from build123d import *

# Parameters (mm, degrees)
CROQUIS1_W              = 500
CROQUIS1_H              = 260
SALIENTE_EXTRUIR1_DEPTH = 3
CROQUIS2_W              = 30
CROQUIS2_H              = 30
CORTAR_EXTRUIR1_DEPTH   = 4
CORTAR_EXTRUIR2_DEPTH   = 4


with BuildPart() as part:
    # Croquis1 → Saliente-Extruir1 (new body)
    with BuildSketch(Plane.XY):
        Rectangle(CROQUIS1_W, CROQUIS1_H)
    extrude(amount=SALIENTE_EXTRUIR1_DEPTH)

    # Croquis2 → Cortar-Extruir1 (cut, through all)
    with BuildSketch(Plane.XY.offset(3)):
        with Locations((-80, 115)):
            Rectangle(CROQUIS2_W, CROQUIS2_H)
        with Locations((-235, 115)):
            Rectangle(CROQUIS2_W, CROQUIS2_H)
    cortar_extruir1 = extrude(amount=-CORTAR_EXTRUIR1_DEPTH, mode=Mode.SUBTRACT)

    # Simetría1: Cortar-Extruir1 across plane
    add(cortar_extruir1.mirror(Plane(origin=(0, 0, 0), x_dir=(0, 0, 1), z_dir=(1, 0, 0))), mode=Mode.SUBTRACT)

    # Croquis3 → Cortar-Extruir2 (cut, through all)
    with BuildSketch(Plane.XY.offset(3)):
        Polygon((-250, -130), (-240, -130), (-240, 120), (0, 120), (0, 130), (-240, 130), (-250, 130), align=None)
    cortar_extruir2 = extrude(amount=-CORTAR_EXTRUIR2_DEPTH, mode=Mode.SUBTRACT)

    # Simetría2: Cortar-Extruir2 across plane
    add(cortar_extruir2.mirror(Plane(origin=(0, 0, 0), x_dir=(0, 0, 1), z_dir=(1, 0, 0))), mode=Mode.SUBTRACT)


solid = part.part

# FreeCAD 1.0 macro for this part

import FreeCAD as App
import Part
import Sketcher
from FreeCAD import Vector
Q = App.Units.Quantity


def add_polygon(sketch, points):
    """Adds a closed chain of lines whose ends are joined by coincident constraints."""
    first, n = sketch.GeometryCount, len(points)
    for a, b in zip(points, points[1:] + points[:1]):
        sketch.addGeometry(Part.LineSegment(App.Vector(*a, 0), App.Vector(*b, 0)), False)
    for i in range(n):
        sketch.addConstraint(Sketcher.Constraint("Coincident", first + i, 2, first + (i + 1) % n, 1))

doc = App.newDocument("Part")
body = doc.addObject("PartDesign::Body", "Body")

# Sketch on XY plane
sketch1 = doc.addObject("Sketcher::SketchObject", "Sketch")
body.addObject(sketch1)
sketch1.AttachmentSupport = (doc.XY_Plane, [""])
sketch1.MapMode = "FlatFace"
add_polygon(sketch1, [(-250, 130), (-250, -130), (250, -130), (250, 130)])  # lines 0-3
sketch1.addConstraint([
    Sketcher.Constraint("Vertical", 0),
    Sketcher.Constraint("Horizontal", 1),
    Sketcher.Constraint("Vertical", 2),
    Sketcher.Constraint("Horizontal", 3),
    Sketcher.Constraint("Symmetric", 0, 2, 2, 2, -1, 1),
    Sketcher.Constraint("DistanceX", 1, 1, 1, 2, Q("500 mm")),
    Sketcher.Constraint("DistanceY", 0, 2, 0, 1, Q("260 mm")),
])
pad1 = doc.addObject("PartDesign::Pad", "Pad")
body.addObject(pad1)
pad1.Profile = sketch1
pad1.Length = 3

# Sketch on XY plane
sketch2 = doc.addObject("Sketcher::SketchObject", "Sketch001")
body.addObject(sketch2)
sketch2.AttachmentSupport = (doc.XY_Plane, [""])
sketch2.MapMode = "FlatFace"
sketch2.AttachmentOffset = App.Placement(Vector(0, 0, 3), App.Rotation())
add_polygon(sketch2, [(-95, 130), (-95, 100), (-65, 100), (-65, 130)])  # lines 0-3
add_polygon(sketch2, [(-250, 130), (-250, 100), (-220, 100), (-220, 130)])  # lines 4-7
sketch2.addConstraint([
    Sketcher.Constraint("Vertical", 0),
    Sketcher.Constraint("Horizontal", 1),
    Sketcher.Constraint("Vertical", 2),
    Sketcher.Constraint("Horizontal", 3),
    Sketcher.Constraint("Vertical", 4),
    Sketcher.Constraint("Horizontal", 5),
    Sketcher.Constraint("Vertical", 6),
    Sketcher.Constraint("Horizontal", 7),
    Sketcher.Constraint("Horizontal", 1, 2, 4, 2),
    Sketcher.Constraint("Horizontal", 3, 2, 6, 2),
    Sketcher.Constraint("Equal", 3, 5),
    Sketcher.Constraint("Equal", 7, 0),
    Sketcher.Constraint("DistanceX", 1, 1, 1, 2, Q("30 mm")),
    Sketcher.Constraint("DistanceX", 0, 2, -1, 1, Q("95 mm")),
    Sketcher.Constraint("DistanceY", -1, 1, 0, 2, Q("100 mm")),
    Sketcher.Constraint("DistanceX", 4, 2, -1, 1, Q("250 mm")),
])
pocket1 = doc.addObject("PartDesign::Pocket", "Pocket")
body.addObject(pocket1)
pocket1.Profile = sketch2
pocket1.Type = "ThroughAll"
doc.recompute()

mirrored = doc.addObject("PartDesign::Mirrored", "Mirrored")
body.addObject(mirrored)
mirrored.Originals = [pocket1]
mirrored.MirrorPlane = (doc.YZ_Plane, [""])
body.Tip = mirrored

# Sketch on XY plane
sketch3 = doc.addObject("Sketcher::SketchObject", "Sketch002")
body.addObject(sketch3)
sketch3.AttachmentSupport = (doc.XY_Plane, [""])
sketch3.MapMode = "FlatFace"
sketch3.AttachmentOffset = App.Placement(Vector(0, 0, 3), App.Rotation())
add_polygon(sketch3, [(-250, -130), (-240, -130), (-240, 120), (0, 120), (0, 130), (-250, 130)])  # lines 0-5
sketch3.addConstraint([
    Sketcher.Constraint("Horizontal", 0),
    Sketcher.Constraint("Vertical", 1),
    Sketcher.Constraint("Horizontal", 2),
    Sketcher.Constraint("Vertical", 3),
    Sketcher.Constraint("Horizontal", 4),
    Sketcher.Constraint("Vertical", 5),
    Sketcher.Constraint("PointOnObject", 2, 2, -2),
    Sketcher.Constraint("Equal", 4, 1),
    Sketcher.Constraint("Equal", 0, 3),
    Sketcher.Constraint("DistanceX", 0, 1, 0, 2, Q("10 mm")),
    Sketcher.Constraint("DistanceX", 2, 1, 2, 2, Q("240 mm")),
    Sketcher.Constraint("DistanceY", 0, 2, -1, 1, Q("130 mm")),
])
pocket2 = doc.addObject("PartDesign::Pocket", "Pocket001")
body.addObject(pocket2)
pocket2.Profile = sketch3
pocket2.Type = "ThroughAll"
doc.recompute()

mirrored2 = doc.addObject("PartDesign::Mirrored", "Mirrored001")
body.addObject(mirrored2)
mirrored2.Originals = [pocket2]
mirrored2.MirrorPlane = (doc.YZ_Plane, [""])
body.Tip = mirrored2

doc.recompute()
